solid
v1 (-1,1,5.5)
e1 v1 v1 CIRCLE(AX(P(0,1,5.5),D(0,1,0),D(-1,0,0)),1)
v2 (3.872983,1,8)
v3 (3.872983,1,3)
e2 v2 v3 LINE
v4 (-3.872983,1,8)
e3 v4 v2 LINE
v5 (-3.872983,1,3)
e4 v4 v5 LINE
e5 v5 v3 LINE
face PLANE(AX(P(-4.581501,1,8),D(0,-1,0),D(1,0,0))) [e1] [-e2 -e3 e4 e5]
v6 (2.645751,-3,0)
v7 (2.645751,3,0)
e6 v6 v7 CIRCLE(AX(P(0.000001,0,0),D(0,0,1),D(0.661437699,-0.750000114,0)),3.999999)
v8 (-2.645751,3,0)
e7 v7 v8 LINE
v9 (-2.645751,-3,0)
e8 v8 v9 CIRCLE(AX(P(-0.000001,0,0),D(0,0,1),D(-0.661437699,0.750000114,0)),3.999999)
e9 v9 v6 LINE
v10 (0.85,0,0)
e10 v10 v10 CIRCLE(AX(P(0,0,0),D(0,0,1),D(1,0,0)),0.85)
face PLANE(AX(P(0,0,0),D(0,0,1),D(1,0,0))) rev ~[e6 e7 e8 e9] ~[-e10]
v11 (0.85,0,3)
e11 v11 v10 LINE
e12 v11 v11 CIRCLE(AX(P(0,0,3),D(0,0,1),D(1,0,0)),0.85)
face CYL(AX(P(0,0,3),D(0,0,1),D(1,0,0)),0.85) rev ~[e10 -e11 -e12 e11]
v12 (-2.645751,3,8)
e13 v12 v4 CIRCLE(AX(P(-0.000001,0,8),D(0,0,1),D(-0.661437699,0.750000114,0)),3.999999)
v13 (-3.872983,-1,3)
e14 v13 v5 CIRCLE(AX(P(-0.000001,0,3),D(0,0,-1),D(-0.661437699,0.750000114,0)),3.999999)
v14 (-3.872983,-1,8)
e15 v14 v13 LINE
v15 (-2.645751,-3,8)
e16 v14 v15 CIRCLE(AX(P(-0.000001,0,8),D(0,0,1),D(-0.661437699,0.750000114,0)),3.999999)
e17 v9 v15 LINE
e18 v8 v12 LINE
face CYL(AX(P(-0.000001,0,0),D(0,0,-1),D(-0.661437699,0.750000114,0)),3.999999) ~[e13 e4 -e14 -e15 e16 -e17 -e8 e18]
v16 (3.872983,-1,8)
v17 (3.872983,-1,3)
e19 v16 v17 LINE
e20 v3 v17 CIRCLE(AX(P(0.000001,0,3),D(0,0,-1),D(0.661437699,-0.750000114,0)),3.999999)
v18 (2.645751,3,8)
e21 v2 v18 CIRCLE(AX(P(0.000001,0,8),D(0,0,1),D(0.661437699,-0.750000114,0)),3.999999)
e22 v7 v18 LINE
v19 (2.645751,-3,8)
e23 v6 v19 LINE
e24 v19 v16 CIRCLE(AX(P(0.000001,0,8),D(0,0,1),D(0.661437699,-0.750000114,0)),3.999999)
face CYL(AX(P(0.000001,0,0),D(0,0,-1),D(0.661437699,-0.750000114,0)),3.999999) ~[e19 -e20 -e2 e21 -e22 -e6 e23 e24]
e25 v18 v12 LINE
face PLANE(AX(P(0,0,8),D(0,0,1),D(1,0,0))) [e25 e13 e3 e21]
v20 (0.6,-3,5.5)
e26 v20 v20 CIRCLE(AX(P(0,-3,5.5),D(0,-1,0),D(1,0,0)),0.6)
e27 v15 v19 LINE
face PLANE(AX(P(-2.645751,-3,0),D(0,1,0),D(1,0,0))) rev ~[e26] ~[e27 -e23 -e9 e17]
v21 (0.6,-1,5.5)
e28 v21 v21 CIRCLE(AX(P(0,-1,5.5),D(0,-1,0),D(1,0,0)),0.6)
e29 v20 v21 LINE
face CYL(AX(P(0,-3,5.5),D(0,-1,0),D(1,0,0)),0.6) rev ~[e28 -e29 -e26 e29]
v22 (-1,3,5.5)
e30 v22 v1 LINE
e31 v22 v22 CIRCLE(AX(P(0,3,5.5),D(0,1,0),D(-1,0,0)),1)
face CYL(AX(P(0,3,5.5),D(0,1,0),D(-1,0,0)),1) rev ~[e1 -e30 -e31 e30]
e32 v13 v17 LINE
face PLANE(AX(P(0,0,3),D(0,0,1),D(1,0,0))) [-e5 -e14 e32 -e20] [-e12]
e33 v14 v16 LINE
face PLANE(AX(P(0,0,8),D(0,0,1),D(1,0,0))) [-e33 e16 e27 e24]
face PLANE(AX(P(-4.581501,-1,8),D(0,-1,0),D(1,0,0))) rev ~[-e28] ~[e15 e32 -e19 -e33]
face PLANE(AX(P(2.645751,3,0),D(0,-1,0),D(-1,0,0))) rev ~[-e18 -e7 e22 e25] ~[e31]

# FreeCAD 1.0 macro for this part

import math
import FreeCAD as App
import Part
import Sketcher

V = App.Vector
Q = App.Units.Quantity


def add_polygon(sketch, points):
    """Adds a closed chain of lines whose ends are joined by coincident constraints."""
    first, n = sketch.GeometryCount, len(points)
    for a, b in zip(points, points[1:] + points[:1]):
        sketch.addGeometry(Part.LineSegment(App.Vector(*a, 0), App.Vector(*b, 0)), False)
    for i in range(n):
        sketch.addConstraint(Sketcher.Constraint("Coincident", first + i, 2, first + (i + 1) % n, 1))

doc = App.newDocument("Part")
params = doc.addObject("Spreadsheet::Sheet", "Params")
for row, (alias, value) in enumerate([
    ("sketch1_radius", "3.999999 mm"),
    ("pad1_length", "8 mm"),
    ("sketch2_height", "2 mm"),
    ("pocket1_length", "5 mm"),
    ("sketch3_diameter", "1.2 mm"),
    ("sketch4_diameter", "2 mm"),
    ("pocket3_length", "2 mm"),
    ("sketch5_diameter", "1.7 mm"),
], start=1):
    params.set(f"A{row}", alias)
    params.set(f"B{row}", "=" + value)
    params.setAlias(f"B{row}", alias)

body = doc.addObject("PartDesign::Body", "Body")

sketch1 = doc.addObject("Sketcher::SketchObject", "Sketch")
body.addObject(sketch1)
sketch1.AttachmentSupport = (doc.XY_Plane, [""])
sketch1.MapMode = "FlatFace"
sketch1.addGeometry(Part.LineSegment(V(2.645751, 3, 0), V(-2.645751, 3, 0)), False)
sketch1.addGeometry(Part.ArcOfCircle(Part.Circle(V(-0.000001, 0, 0), V(0, 0, 1), 3.999999), math.radians(131.409612), math.radians(228.590388)), False)
sketch1.addGeometry(Part.LineSegment(V(-2.645751, -3, 0), V(2.645751, -3, 0)), False)
sketch1.addGeometry(Part.ArcOfCircle(Part.Circle(V(0.000001, 0, 0), V(0, 0, 1), 3.999999), math.radians(-48.590388), math.radians(48.590388)), False)
sketch1.addConstraint(Sketcher.Constraint("Coincident", 0, 2, 1, 1))
sketch1.addConstraint(Sketcher.Constraint("Coincident", 1, 2, 2, 1))
sketch1.addConstraint(Sketcher.Constraint("Coincident", 2, 2, 3, 1))
sketch1.addConstraint(Sketcher.Constraint("Coincident", 3, 2, 0, 1))
sketch1.addConstraint(Sketcher.Constraint("Horizontal", 0))
sketch1.addConstraint(Sketcher.Constraint("Horizontal", 2))
sketch1.addConstraint(Sketcher.Constraint("Coincident", 1, 3, -1, 1))
sketch1.addConstraint(Sketcher.Constraint("Coincident", 3, 3, -1, 1))
sketch1.addConstraint(Sketcher.Constraint("Equal", 1, 3))
sketch1.addConstraint(Sketcher.Constraint("Vertical", 0, 2, 1, 2))
sketch1.addConstraint(Sketcher.Constraint("Radius", 1, Q("3.999999 mm")))
sketch1.addConstraint(Sketcher.Constraint("DistanceY", -1, 1, 0, 2, Q("3 mm")))
sketch1.setExpression("Constraints[10]", "Params.sketch1_radius")
pad1 = doc.addObject("PartDesign::Pad", "Pad")
body.addObject(pad1)
pad1.Profile = sketch1
pad1.setExpression("Length", "Params.pad1_length")

sketch2 = doc.addObject("Sketcher::SketchObject", "Sketch001")
body.addObject(sketch2)
sketch2.AttachmentSupport = (doc.XY_Plane, [""])
sketch2.MapMode = "FlatFace"
sketch2.AttachmentOffset = App.Placement(V(0, 0, 8), App.Rotation())
add_polygon(sketch2, [(-4.581501, 1), (-4.581501, -1), (4.581501, -1), (4.581501, 1)])
sketch2.addConstraint(Sketcher.Constraint("Vertical", 0))
sketch2.addConstraint(Sketcher.Constraint("Horizontal", 1))
sketch2.addConstraint(Sketcher.Constraint("Vertical", 2))
sketch2.addConstraint(Sketcher.Constraint("Horizontal", 3))
sketch2.addConstraint(Sketcher.Constraint("Symmetric", 0, 2, 2, 2, -1, 1))
sketch2.addConstraint(Sketcher.Constraint("DistanceY", 0, 2, 0, 1, Q("2 mm")))
sketch2.addConstraint(Sketcher.Constraint("DistanceX", 0, 2, -1, 1, Q("4.581501 mm")))
sketch2.setExpression("Constraints[9]", "Params.sketch2_height")
pocket1 = doc.addObject("PartDesign::Pocket", "Pocket")
body.addObject(pocket1)
pocket1.Profile = sketch2
pocket1.setExpression("Length", "Params.pocket1_length")

sketch3 = doc.addObject("Sketcher::SketchObject", "Sketch002")
body.addObject(sketch3)
sketch3.AttachmentSupport = (doc.XZ_Plane, [""])
sketch3.MapMode = "FlatFace"
sketch3.AttachmentOffset = App.Placement(V(0, 0, 3), App.Rotation())
sketch3.addGeometry(Part.Circle(V(0, 5.5, 0), V(0, 0, 1), 0.6), False)
sketch3.addConstraint(Sketcher.Constraint("PointOnObject", 0, 3, -2))
sketch3.addConstraint(Sketcher.Constraint("Diameter", 0, Q("1.2 mm")))
sketch3.addConstraint(Sketcher.Constraint("DistanceY", -1, 1, 0, 3, Q("5.5 mm")))
sketch3.setExpression("Constraints[1]", "Params.sketch3_diameter")
pocket2 = doc.addObject("PartDesign::Pocket", "Pocket001")
body.addObject(pocket2)
pocket2.Profile = sketch3
pocket2.Type = "ThroughAll"

sketch4 = doc.addObject("Sketcher::SketchObject", "Sketch003")
body.addObject(sketch4)
sketch4.AttachmentSupport = (doc.XZ_Plane, [""])
sketch4.MapMode = "FlatFace"
sketch4.AttachmentOffset = App.Placement(V(0, 0, -3), App.Rotation())
sketch4.addGeometry(Part.Circle(V(0, 5.5, 0), V(0, 0, 1), 1), False)
sketch4.addConstraint(Sketcher.Constraint("PointOnObject", 0, 3, -2))
sketch4.addConstraint(Sketcher.Constraint("Diameter", 0, Q("2 mm")))
sketch4.addConstraint(Sketcher.Constraint("DistanceY", -1, 1, 0, 3, Q("5.5 mm")))
sketch4.setExpression("Constraints[1]", "Params.sketch4_diameter")
pocket3 = doc.addObject("PartDesign::Pocket", "Pocket002")
body.addObject(pocket3)
pocket3.Profile = sketch4
pocket3.setExpression("Length", "Params.pocket3_length")
pocket3.Reversed = True

sketch5 = doc.addObject("Sketcher::SketchObject", "Sketch004")
body.addObject(sketch5)
sketch5.AttachmentSupport = (doc.XY_Plane, [""])
sketch5.MapMode = "FlatFace"
sketch5.AttachmentOffset = App.Placement(V(0, 0, 3), App.Rotation())
sketch5.addGeometry(Part.Circle(V(0, 0, 0), V(0, 0, 1), 0.85), False)
sketch5.addConstraint(Sketcher.Constraint("Coincident", 0, 3, -1, 1))
sketch5.addConstraint(Sketcher.Constraint("Diameter", 0, Q("1.7 mm")))
sketch5.setExpression("Constraints[1]", "Params.sketch5_diameter")
pocket4 = doc.addObject("PartDesign::Pocket", "Pocket003")
body.addObject(pocket4)
pocket4.Profile = sketch5
pocket4.Type = "ThroughAll"

doc.recompute()
